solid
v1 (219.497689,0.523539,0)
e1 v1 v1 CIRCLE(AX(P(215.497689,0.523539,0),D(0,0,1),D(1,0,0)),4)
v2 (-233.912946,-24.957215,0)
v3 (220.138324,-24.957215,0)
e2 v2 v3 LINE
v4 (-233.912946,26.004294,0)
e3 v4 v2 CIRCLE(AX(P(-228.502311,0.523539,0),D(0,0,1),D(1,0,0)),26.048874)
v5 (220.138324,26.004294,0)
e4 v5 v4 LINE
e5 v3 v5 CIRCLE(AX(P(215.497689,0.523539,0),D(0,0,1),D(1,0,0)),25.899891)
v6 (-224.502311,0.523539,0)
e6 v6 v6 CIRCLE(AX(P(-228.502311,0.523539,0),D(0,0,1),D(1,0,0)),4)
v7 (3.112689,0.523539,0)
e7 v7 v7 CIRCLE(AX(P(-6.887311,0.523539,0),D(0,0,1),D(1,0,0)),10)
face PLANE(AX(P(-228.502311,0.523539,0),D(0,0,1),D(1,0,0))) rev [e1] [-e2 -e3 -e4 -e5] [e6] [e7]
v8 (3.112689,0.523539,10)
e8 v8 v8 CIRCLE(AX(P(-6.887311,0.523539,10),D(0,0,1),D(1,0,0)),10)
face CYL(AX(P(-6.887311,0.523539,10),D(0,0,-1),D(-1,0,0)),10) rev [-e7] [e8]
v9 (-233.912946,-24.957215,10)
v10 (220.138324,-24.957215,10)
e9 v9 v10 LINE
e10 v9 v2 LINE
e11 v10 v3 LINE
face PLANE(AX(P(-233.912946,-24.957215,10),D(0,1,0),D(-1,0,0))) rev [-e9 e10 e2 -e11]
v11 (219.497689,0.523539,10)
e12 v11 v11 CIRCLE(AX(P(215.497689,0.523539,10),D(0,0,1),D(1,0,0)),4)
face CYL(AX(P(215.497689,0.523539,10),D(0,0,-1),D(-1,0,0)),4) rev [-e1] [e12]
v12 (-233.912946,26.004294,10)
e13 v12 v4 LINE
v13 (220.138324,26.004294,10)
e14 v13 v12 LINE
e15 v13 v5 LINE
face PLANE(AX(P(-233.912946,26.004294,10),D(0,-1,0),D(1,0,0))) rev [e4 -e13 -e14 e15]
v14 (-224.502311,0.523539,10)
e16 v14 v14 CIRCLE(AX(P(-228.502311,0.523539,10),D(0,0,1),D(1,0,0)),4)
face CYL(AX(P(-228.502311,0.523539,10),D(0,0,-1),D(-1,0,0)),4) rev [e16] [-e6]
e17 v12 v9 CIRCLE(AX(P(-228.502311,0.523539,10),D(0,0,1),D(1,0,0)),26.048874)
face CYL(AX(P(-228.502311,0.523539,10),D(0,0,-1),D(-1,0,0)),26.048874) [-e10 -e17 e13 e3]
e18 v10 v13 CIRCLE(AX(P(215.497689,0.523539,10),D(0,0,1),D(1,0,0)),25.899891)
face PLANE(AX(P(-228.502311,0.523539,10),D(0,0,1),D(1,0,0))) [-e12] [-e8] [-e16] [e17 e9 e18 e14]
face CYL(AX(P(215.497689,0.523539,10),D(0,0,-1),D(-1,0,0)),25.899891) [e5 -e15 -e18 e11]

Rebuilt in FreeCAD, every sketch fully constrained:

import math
import FreeCAD as App
import Part
import Sketcher

doc = App.newDocument("Part")
body = doc.addObject("PartDesign::Body", "Body")

sketch1 = body.newObject("Sketcher::SketchObject", "Sketch")
sketch1.AttachmentSupport = (doc.getObject("XY_Plane"), [""])
sketch1.MapMode = "FlatFace"
sketch1.addGeometry([
    Part.LineSegment(App.Vector(220.138324, 26.004294, 0), App.Vector(-233.912946, 26.004294, 0)),
    Part.ArcOfCircle(Part.Circle(App.Vector(-228.502311, 0.523539, 0), App.Vector(0, 0, 1), 26.048874), math.radians(101.988239), math.radians(258.011761)),
    Part.LineSegment(App.Vector(-233.912946, -24.957215, 0), App.Vector(220.138324, -24.957215, 0)),
    Part.ArcOfCircle(Part.Circle(App.Vector(215.497689, 0.523539, 0), App.Vector(0, 0, 1), 25.899891), math.radians(-79.678241), math.radians(79.678241)),
    Part.Circle(App.Vector(215.497689, 0.523539, 0), App.Vector(0, 0, 1), 4),
    Part.Circle(App.Vector(-6.887311, 0.523539, 0), App.Vector(0, 0, 1), 10),
    Part.Circle(App.Vector(-228.502311, 0.523539, 0), App.Vector(0, 0, 1), 4),
], False)
sketch1.addConstraint([
    Sketcher.Constraint("Coincident", 0, 2, 1, 1),
    Sketcher.Constraint("Coincident", 1, 2, 2, 1),
    Sketcher.Constraint("Coincident", 2, 2, 3, 1),
    Sketcher.Constraint("Coincident", 3, 2, 0, 1),
    Sketcher.Constraint("Horizontal", 0),
    Sketcher.Constraint("Horizontal", 2),
    Sketcher.Constraint("Coincident", 4, 3, 3, 3),
    Sketcher.Constraint("Coincident", 6, 3, 1, 3),
    Sketcher.Constraint("Equal", 4, 6),
    Sketcher.Constraint("Horizontal", 1, 3, 3, 3),
    Sketcher.Constraint("Horizontal", 4, 3, 5, 3),
    Sketcher.Constraint("Vertical", 0, 2, 1, 2),
    Sketcher.Constraint("Diameter", 4, 8.0),
    Sketcher.Constraint("Diameter", 5, 20.0),
    Sketcher.Constraint("DistanceX", 1, 3, 3, 3, 444.0),
    Sketcher.Constraint("Radius", 3, 25.899891),
    Sketcher.Constraint("Radius", 1, 26.048874),
    Sketcher.Constraint("DistanceX", 1, 3, 5, 3, 221.615),
    Sketcher.Constraint("DistanceX", 0, 2, 0, 1, 454.05127),
    Sketcher.Constraint("DistanceX", 1, 3, -1, 1, 228.502311),
    Sketcher.Constraint("DistanceY", -1, 1, 1, 3, 0.523539),
])
pad1 = body.newObject("PartDesign::Pad", "Pad")
pad1.Profile = sketch1
pad1.Length = 10

doc.recompute()
